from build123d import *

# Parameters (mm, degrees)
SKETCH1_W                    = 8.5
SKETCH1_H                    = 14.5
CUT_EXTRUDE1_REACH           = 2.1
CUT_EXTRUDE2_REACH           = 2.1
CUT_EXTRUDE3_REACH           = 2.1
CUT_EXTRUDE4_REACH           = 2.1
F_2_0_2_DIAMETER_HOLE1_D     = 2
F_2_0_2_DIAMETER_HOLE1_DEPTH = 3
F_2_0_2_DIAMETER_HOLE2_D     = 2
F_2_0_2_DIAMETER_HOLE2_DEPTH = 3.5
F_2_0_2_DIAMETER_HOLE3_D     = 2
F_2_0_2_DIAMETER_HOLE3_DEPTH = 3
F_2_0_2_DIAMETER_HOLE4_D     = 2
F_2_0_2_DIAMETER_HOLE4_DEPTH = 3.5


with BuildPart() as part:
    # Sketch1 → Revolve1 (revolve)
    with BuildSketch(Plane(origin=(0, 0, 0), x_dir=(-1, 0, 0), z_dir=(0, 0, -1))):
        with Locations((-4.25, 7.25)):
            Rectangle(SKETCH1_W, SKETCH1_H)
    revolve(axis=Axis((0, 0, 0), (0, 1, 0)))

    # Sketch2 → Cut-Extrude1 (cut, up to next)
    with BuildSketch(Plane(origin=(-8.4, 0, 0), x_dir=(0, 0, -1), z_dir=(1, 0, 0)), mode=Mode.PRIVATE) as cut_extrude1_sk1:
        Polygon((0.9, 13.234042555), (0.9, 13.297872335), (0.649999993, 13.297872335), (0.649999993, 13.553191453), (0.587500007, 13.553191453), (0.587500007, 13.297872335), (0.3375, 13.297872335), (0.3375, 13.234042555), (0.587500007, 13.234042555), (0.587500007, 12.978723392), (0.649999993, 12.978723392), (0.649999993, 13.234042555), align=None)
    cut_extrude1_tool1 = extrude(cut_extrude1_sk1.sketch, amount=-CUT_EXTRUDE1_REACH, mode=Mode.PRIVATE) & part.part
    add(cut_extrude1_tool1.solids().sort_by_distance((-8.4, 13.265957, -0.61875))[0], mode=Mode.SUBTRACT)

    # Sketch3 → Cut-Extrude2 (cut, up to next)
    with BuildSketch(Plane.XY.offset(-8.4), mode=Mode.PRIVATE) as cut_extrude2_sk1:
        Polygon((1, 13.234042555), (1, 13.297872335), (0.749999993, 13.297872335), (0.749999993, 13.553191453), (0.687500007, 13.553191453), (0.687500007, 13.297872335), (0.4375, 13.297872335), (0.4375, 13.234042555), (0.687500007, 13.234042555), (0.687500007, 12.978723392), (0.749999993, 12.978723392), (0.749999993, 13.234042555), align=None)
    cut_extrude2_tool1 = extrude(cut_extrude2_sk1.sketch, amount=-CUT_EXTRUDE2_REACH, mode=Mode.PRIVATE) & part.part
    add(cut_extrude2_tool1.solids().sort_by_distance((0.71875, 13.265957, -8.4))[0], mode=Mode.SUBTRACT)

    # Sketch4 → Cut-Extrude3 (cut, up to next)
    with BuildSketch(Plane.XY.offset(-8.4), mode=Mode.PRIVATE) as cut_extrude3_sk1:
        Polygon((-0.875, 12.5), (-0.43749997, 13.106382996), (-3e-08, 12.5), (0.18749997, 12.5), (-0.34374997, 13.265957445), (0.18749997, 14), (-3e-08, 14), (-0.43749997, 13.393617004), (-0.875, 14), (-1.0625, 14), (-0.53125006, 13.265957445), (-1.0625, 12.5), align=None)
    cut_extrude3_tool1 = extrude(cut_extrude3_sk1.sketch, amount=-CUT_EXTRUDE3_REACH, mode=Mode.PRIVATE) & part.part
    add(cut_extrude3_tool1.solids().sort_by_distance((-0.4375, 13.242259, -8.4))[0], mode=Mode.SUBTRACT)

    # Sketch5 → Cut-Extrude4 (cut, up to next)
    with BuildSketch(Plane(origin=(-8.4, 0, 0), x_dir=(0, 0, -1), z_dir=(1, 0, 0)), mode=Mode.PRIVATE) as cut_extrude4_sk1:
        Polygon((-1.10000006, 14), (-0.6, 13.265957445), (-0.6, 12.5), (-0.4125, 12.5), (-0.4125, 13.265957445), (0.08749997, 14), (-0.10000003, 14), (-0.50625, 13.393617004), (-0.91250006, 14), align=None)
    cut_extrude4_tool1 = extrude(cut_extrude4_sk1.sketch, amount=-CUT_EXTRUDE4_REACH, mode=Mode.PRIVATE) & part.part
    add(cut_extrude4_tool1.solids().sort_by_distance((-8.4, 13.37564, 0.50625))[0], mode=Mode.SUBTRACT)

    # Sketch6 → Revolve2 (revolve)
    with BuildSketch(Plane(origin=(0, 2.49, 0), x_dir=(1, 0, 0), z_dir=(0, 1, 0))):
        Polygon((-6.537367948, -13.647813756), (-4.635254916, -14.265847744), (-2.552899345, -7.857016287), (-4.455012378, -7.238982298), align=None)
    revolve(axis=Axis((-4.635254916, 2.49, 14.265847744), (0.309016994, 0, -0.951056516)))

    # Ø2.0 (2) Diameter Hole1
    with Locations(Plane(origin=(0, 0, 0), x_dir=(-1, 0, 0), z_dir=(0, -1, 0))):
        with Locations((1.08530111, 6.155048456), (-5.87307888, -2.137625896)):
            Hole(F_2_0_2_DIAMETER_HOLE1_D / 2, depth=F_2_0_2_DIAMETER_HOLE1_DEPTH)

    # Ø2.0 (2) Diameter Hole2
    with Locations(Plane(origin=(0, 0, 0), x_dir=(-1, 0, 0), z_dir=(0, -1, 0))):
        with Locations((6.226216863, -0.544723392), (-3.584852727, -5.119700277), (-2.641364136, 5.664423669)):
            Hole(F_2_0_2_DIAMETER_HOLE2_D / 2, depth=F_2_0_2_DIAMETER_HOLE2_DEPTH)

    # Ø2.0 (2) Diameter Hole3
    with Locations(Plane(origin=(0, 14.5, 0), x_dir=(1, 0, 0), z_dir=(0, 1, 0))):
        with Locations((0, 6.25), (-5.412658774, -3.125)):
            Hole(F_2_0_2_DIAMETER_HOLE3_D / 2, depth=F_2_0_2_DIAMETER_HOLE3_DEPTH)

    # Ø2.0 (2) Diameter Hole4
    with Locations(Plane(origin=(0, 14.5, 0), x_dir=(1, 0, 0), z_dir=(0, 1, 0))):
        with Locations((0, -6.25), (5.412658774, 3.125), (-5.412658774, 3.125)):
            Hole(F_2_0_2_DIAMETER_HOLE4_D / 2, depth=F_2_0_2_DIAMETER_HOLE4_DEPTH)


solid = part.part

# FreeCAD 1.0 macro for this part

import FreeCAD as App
import Part
import Sketcher

V = App.Vector
Q = App.Units.Quantity


def add_polygon(sketch, points):
    """Adds a closed chain of lines whose ends are joined by coincident constraints."""
    first, n = sketch.GeometryCount, len(points)
    for a, b in zip(points, points[1:] + points[:1]):
        sketch.addGeometry(Part.LineSegment(App.Vector(*a, 0), App.Vector(*b, 0)), False)
    for i in range(n):
        sketch.addConstraint(Sketcher.Constraint("Coincident", first + i, 2, first + (i + 1) % n, 1))

doc = App.newDocument("Part")
body = doc.addObject("PartDesign::Body", "Body")

# Sketch on XY plane
sketch1 = body.newObject("Sketcher::SketchObject", "Sketch")
sketch1.AttachmentSupport = (doc.getObject("XY_Plane"), [""])
sketch1.MapMode = "FlatFace"
add_polygon(sketch1, [(8, 14), (8, 0), (0, 0), (0, 14)])  # lines 0-3
sketch1.addConstraint(Sketcher.Constraint("Vertical", 0))
sketch1.addConstraint(Sketcher.Constraint("Horizontal", 1))
sketch1.addConstraint(Sketcher.Constraint("Vertical", 2))
sketch1.addConstraint(Sketcher.Constraint("Horizontal", 3))
sketch1.addConstraint(Sketcher.Constraint("Coincident", 1, 2, -1, 1))
sketch1.addConstraint(Sketcher.Constraint("DistanceX", 1, 2, 1, 1, Q("8.5 mm")))
sketch1.addConstraint(Sketcher.Constraint("DistanceY", 0, 2, 0, 1, Q("14.5 mm")))
revolution = body.newObject("PartDesign::Revolution", "Revolution")
revolution.Profile = sketch1
revolution.ReferenceAxis = (sketch1, ["V_Axis"])
revolution.Angle = 360

# Sketch on YZ plane
sketch2 = body.newObject("Sketcher::SketchObject", "Sketch001")
sketch2.AttachmentSupport = (doc.getObject("YZ_Plane"), [""])
sketch2.MapMode = "FlatFace"
sketch2.AttachmentOffset = App.Placement(V(0, 0, -8.4), App.Rotation())
add_polygon(sketch2, [(13.23, -0.9), (13.3, -0.9), (13.3, -0.65), (13.55, -0.65), (13.55, -0.59), (13.3, -0.59), (13.3, -0.34), (13.23, -0.34), (13.23, -0.59), (12.98, -0.59), (12.98, -0.65), (13.23, -0.65)])  # lines 0-11
sketch2.addConstraint(Sketcher.Constraint("Horizontal", 0))
sketch2.addConstraint(Sketcher.Constraint("Vertical", 1))
sketch2.addConstraint(Sketcher.Constraint("Horizontal", 2))
sketch2.addConstraint(Sketcher.Constraint("Vertical", 3))
sketch2.addConstraint(Sketcher.Constraint("Horizontal", 4))
sketch2.addConstraint(Sketcher.Constraint("Vertical", 5))
sketch2.addConstraint(Sketcher.Constraint("Horizontal", 6))
sketch2.addConstraint(Sketcher.Constraint("Vertical", 7))
sketch2.addConstraint(Sketcher.Constraint("Horizontal", 8))
sketch2.addConstraint(Sketcher.Constraint("Vertical", 9))
sketch2.addConstraint(Sketcher.Constraint("Horizontal", 10))
sketch2.addConstraint(Sketcher.Constraint("Vertical", 11))
sketch2.addConstraint(Sketcher.Constraint("Horizontal", 4, 2, 7, 2))
sketch2.addConstraint(Sketcher.Constraint("Horizontal", 2, 2, 9, 2))
sketch2.addConstraint(Sketcher.Constraint("Vertical", 1, 2, 4, 2))
sketch2.addConstraint(Sketcher.Constraint("Vertical", 7, 2, 10, 2))
sketch2.addConstraint(Sketcher.Constraint("Equal", 4, 8))
sketch2.addConstraint(Sketcher.Constraint("Equal", 1, 5))
sketch2.addConstraint(Sketcher.Constraint("DistanceY", 1, 1, 1, 2, Q("0.25 mm")))
sketch2.addConstraint(Sketcher.Constraint("DistanceY", 0, 2, -1, 1, Q("0.9 mm")))
sketch2.addConstraint(Sketcher.Constraint("DistanceY", 3, 1, 3, 2, Q("0.0625 mm")))
sketch2.addConstraint(Sketcher.Constraint("DistanceX", 0, 1, 0, 2, Q("0.06383 mm")))
sketch2.addConstraint(Sketcher.Constraint("DistanceX", 2, 1, 2, 2, Q("0.255319 mm")))
sketch2.addConstraint(Sketcher.Constraint("DistanceX", -1, 1, 2, 2, Q("13.553191 mm")))
pocket1 = body.newObject("PartDesign::Pocket", "Pocket")
pocket1.Profile = sketch2
pocket1.Type = "UpToFirst"

# Sketch on XY plane
sketch3 = body.newObject("Sketcher::SketchObject", "Sketch002")
sketch3.AttachmentSupport = (doc.getObject("XY_Plane"), [""])
sketch3.MapMode = "FlatFace"
sketch3.AttachmentOffset = App.Placement(V(0, 0, -8.4), App.Rotation())
add_polygon(sketch3, [(1, 13.23), (1, 13.3), (0.75, 13.3), (0.75, 13.55), (0.69, 13.55), (0.69, 13.3), (0.44, 13.3), (0.44, 13.23), (0.69, 13.23), (0.69, 12.98), (0.75, 12.98), (0.75, 13.23)])  # lines 0-11
sketch3.addConstraint(Sketcher.Constraint("Vertical", 0))
sketch3.addConstraint(Sketcher.Constraint("Horizontal", 1))
sketch3.addConstraint(Sketcher.Constraint("Vertical", 2))
sketch3.addConstraint(Sketcher.Constraint("Horizontal", 3))
sketch3.addConstraint(Sketcher.Constraint("Vertical", 4))
sketch3.addConstraint(Sketcher.Constraint("Horizontal", 5))
sketch3.addConstraint(Sketcher.Constraint("Vertical", 6))
sketch3.addConstraint(Sketcher.Constraint("Horizontal", 7))
sketch3.addConstraint(Sketcher.Constraint("Vertical", 8))
sketch3.addConstraint(Sketcher.Constraint("Horizontal", 9))
sketch3.addConstraint(Sketcher.Constraint("Vertical", 10))
sketch3.addConstraint(Sketcher.Constraint("Horizontal", 11))
sketch3.addConstraint(Sketcher.Constraint("Horizontal", 1, 2, 4, 2))
sketch3.addConstraint(Sketcher.Constraint("Horizontal", 7, 2, 10, 2))
sketch3.addConstraint(Sketcher.Constraint("Vertical", 4, 2, 7, 2))
sketch3.addConstraint(Sketcher.Constraint("Vertical", 2, 2, 9, 2))
sketch3.addConstraint(Sketcher.Constraint("Equal", 1, 5))
sketch3.addConstraint(Sketcher.Constraint("Equal", 4, 8))
sketch3.addConstraint(Sketcher.Constraint("DistanceX", -1, 1, 0, 2, Q("1 mm")))
sketch3.addConstraint(Sketcher.Constraint("DistanceX", 1, 2, 1, 1, Q("0.25 mm")))
sketch3.addConstraint(Sketcher.Constraint("DistanceX", 3, 2, 3, 1, Q("0.0625 mm")))
sketch3.addConstraint(Sketcher.Constraint("DistanceY", 0, 1, 0, 2, Q("0.06383 mm")))
sketch3.addConstraint(Sketcher.Constraint("DistanceY", 2, 1, 2, 2, Q("0.255319 mm")))
sketch3.addConstraint(Sketcher.Constraint("DistanceY", -1, 1, 2, 2, Q("13.553191 mm")))
pocket2 = body.newObject("PartDesign::Pocket", "Pocket001")
pocket2.Profile = sketch3
pocket2.Type = "UpToFirst"

# Sketch on XY plane
sketch4 = body.newObject("Sketcher::SketchObject", "Sketch003")
sketch4.AttachmentSupport = (doc.getObject("XY_Plane"), [""])
sketch4.MapMode = "FlatFace"
sketch4.AttachmentOffset = App.Placement(V(0, 0, -8.4), App.Rotation())
add_polygon(sketch4, [(-0.88, 12.5), (-0.44, 13.11), (0, 12.5), (0.19, 12.5), (-0.34, 13.27), (0.19, 14), (0, 14), (-0.44, 13.39), (-0.88, 14), (-1.06, 14), (-0.53, 13.27), (-1.06, 12.5)])  # lines 0-11
sketch4.addConstraint(Sketcher.Constraint("Horizontal", 2))
sketch4.addConstraint(Sketcher.Constraint("Horizontal", 5))
sketch4.addConstraint(Sketcher.Constraint("Horizontal", 8))
sketch4.addConstraint(Sketcher.Constraint("Horizontal", 11))
sketch4.addConstraint(Sketcher.Constraint("PointOnObject", 1, 2, -2))
sketch4.addConstraint(Sketcher.Constraint("PointOnObject", 5, 2, -2))
sketch4.addConstraint(Sketcher.Constraint("Parallel", 0, 6))
sketch4.addConstraint(Sketcher.Constraint("Parallel", 1, 7))
sketch4.addConstraint(Sketcher.Constraint("Horizontal", 5, 2, 7, 2))
sketch4.addConstraint(Sketcher.Constraint("Horizontal", 3, 2, 9, 2))
sketch4.addConstraint(Sketcher.Constraint("Horizontal", 2, 2, 10, 2))
sketch4.addConstraint(Sketcher.Constraint("Vertical", 2, 2, 4, 2))
sketch4.addConstraint(Sketcher.Constraint("Vertical", 0, 2, 6, 2))
sketch4.addConstraint(Sketcher.Constraint("Vertical", 8, 2, 10, 2))
sketch4.addConstraint(Sketcher.Constraint("Vertical", 7, 2, 11, 2))
sketch4.addConstraint(Sketcher.Constraint("Equal", 5, 8))
sketch4.addConstraint(Sketcher.Constraint("Equal", 4, 9))
sketch4.addConstraint(Sketcher.Constraint("DistanceY", -1, 1, 4, 2, Q("14 mm")))
sketch4.addConstraint(Sketcher.Constraint("DistanceY", -1, 1, 1, 2, Q("12.5 mm")))
sketch4.addConstraint(Sketcher.Constraint("DistanceX", 2, 1, 2, 2, Q("0.1875 mm")))
sketch4.addConstraint(Sketcher.Constraint("DistanceX", 7, 2, -1, 1, Q("0.875 mm")))
sketch4.addConstraint(Sketcher.Constraint("DistanceX", 9, 2, 3, 2, Q("0.1875 mm")))
sketch4.addConstraint(Sketcher.Constraint("DistanceY", 3, 2, 6, 2, Q("0.12766 mm")))
sketch4.addConstraint(Sketcher.Constraint("Distance", 0, Q("0.747734 mm")))
pocket3 = body.newObject("PartDesign::Pocket", "Pocket002")
pocket3.Profile = sketch4
pocket3.Type = "UpToFirst"

# Sketch on YZ plane
sketch5 = body.newObject("Sketcher::SketchObject", "Sketch004")
sketch5.AttachmentSupport = (doc.getObject("YZ_Plane"), [""])
sketch5.MapMode = "FlatFace"
sketch5.AttachmentOffset = App.Placement(V(0, 0, -8.4), App.Rotation())
add_polygon(sketch5, [(14, 1.1), (13.27, 0.6), (12.5, 0.6), (12.5, 0.41), (13.27, 0.41), (14, -0.09), (14, 0.1), (13.39, 0.51), (14, 0.91)])  # lines 0-8
sketch5.addConstraint(Sketcher.Constraint("Horizontal", 1))
sketch5.addConstraint(Sketcher.Constraint("Vertical", 2))
sketch5.addConstraint(Sketcher.Constraint("Horizontal", 3))
sketch5.addConstraint(Sketcher.Constraint("Vertical", 5))
sketch5.addConstraint(Sketcher.Constraint("Vertical", 8))
sketch5.addConstraint(Sketcher.Constraint("Vertical", 0, 2, 3, 2))
sketch5.addConstraint(Sketcher.Constraint("Vertical", 5, 2, 7, 2))
sketch5.addConstraint(Sketcher.Constraint("Equal", 2, 5))
sketch5.addConstraint(Sketcher.Constraint("Equal", 5, 8))
sketch5.addConstraint(Sketcher.Constraint("Equal", 0, 4))
sketch5.addConstraint(Sketcher.Constraint("Equal", 6, 7))
sketch5.addConstraint(Sketcher.Constraint("DistanceX", -1, 1, 4, 2, Q("14 mm")))
sketch5.addConstraint(Sketcher.Constraint("DistanceY", 4, 2, 7, 2, Q("1 mm")))
sketch5.addConstraint(Sketcher.Constraint("DistanceY", -1, 1, 0, 2, Q("0.6 mm")))
sketch5.addConstraint(Sketcher.Constraint("DistanceX", -1, 1, 1, 2, Q("12.5 mm")))
sketch5.addConstraint(Sketcher.Constraint("DistanceY", 2, 2, 2, 1, Q("0.1875 mm")))
sketch5.addConstraint(Sketcher.Constraint("Distance", 6, Q("0.72989 mm")))
sketch5.addConstraint(Sketcher.Constraint("DistanceX", 1, 2, 1, 1, Q("0.765957 mm")))
pocket4 = body.newObject("PartDesign::Pocket", "Pocket003")
pocket4.Profile = sketch5
pocket4.Type = "UpToFirst"

# Sketch on XZ plane
sketch6 = body.newObject("Sketcher::SketchObject", "Sketch005")
sketch6.AttachmentSupport = (doc.getObject("XZ_Plane"), [""])
sketch6.MapMode = "FlatFace"
sketch6.AttachmentOffset = App.Placement(V(0, 0, -2.49), App.Rotation())
add_polygon(sketch6, [(-6.5, 13.6), (-4.6, 14.3), (-2.6, 7.9), (-4.5, 7.2)])  # lines 0-3
sketch6.addGeometry(Part.LineSegment(V(-4.6, 14.3, 0), V(-2.6, 7.9, 0)), True)  # axis
sketch6.addConstraint(Sketcher.Constraint("Coincident", 4, 1, 0, 2))
sketch6.addConstraint(Sketcher.Constraint("Coincident", 4, 2, 1, 2))
sketch6.addConstraint(Sketcher.Constraint("Perpendicular", 0, 1))
sketch6.addConstraint(Sketcher.Constraint("Perpendicular", 1, 2))
sketch6.addConstraint(Sketcher.Constraint("Perpendicular", 2, 3))
sketch6.addConstraint(Sketcher.Constraint("Angle", 0, Q("18 deg")))
sketch6.addConstraint(Sketcher.Constraint("Distance", 0, Q("2 mm")))
sketch6.addConstraint(Sketcher.Constraint("DistanceX", 1, 2, -1, 1, Q("2.552899 mm")))
sketch6.addConstraint(Sketcher.Constraint("DistanceY", 1, 2, 0, 2, Q("6.408831 mm")))
sketch6.addConstraint(Sketcher.Constraint("DistanceY", -1, 1, 0, 2, Q("14.265848 mm")))
revolution2 = body.newObject("PartDesign::Revolution", "Revolution001")
revolution2.Profile = sketch6
revolution2.ReferenceAxis = (sketch6, ["Axis0"])
revolution2.Angle = 360

# Sketch on XZ plane
sketch7 = body.newObject("Sketcher::SketchObject", "Sketch006")
sketch7.AttachmentSupport = (doc.getObject("XZ_Plane"), [""])
sketch7.MapMode = "FlatFace"
sketch7.addGeometry(Part.Circle(V(-1.1, -6.2, 0), V(0, 0, 1), 1), False)
sketch7.addGeometry(Part.Circle(V(5.9, 2.1, 0), V(0, 0, 1), 1), False)
sketch7.addConstraint(Sketcher.Constraint("Equal", 0, 1))
sketch7.addConstraint(Sketcher.Constraint("Diameter", 0, Q("2 mm")))
sketch7.addConstraint(Sketcher.Constraint("DistanceX", 0, 3, -1, 1, Q("1.085301 mm")))
sketch7.addConstraint(Sketcher.Constraint("DistanceY", 0, 3, -1, 1, Q("6.155048 mm")))
sketch7.addConstraint(Sketcher.Constraint("DistanceX", -1, 1, 1, 3, Q("5.873079 mm")))
sketch7.addConstraint(Sketcher.Constraint("DistanceY", -1, 1, 1, 3, Q("2.137626 mm")))
doc.recompute()
hole = body.newObject("PartDesign::Hole", "Hole")
hole.Profile = sketch7
hole.ThreadType = "None"
hole.Diameter = 2
hole.DepthType = "Dimension"
hole.Depth = 3
hole.DrillPoint = "Flat"

# Sketch on XZ plane
sketch8 = body.newObject("Sketcher::SketchObject", "Sketch007")
sketch8.AttachmentSupport = (doc.getObject("XZ_Plane"), [""])
sketch8.MapMode = "FlatFace"
sketch8.addGeometry(Part.Circle(V(-6.2, 0.5, 0), V(0, 0, 1), 1), False)
sketch8.addGeometry(Part.Circle(V(3.6, 5.1, 0), V(0, 0, 1), 1), False)
sketch8.addGeometry(Part.Circle(V(2.6, -5.7, 0), V(0, 0, 1), 1), False)
sketch8.addConstraint(Sketcher.Constraint("Equal", 0, 1))
sketch8.addConstraint(Sketcher.Constraint("Equal", 1, 2))
sketch8.addConstraint(Sketcher.Constraint("Diameter", 0, Q("2 mm")))
sketch8.addConstraint(Sketcher.Constraint("DistanceY", -1, 1, 1, 3, Q("5.1197 mm")))
sketch8.addConstraint(Sketcher.Constraint("DistanceX", 0, 3, 1, 3, Q("9.81107 mm")))
sketch8.addConstraint(Sketcher.Constraint("DistanceX", 0, 3, 2, 3, Q("8.867581 mm")))
sketch8.addConstraint(Sketcher.Constraint("DistanceX", 0, 3, -1, 1, Q("6.226217 mm")))
sketch8.addConstraint(Sketcher.Constraint("DistanceY", -1, 1, 0, 3, Q("0.544723 mm")))
sketch8.addConstraint(Sketcher.Constraint("DistanceY", 2, 3, -1, 1, Q("5.664424 mm")))
doc.recompute()
hole2 = body.newObject("PartDesign::Hole", "Hole001")
hole2.Profile = sketch8
hole2.ThreadType = "None"
hole2.Diameter = 2
hole2.DepthType = "Dimension"
hole2.Depth = 3.5
hole2.DrillPoint = "Flat"

# Sketch on XZ plane
sketch9 = body.newObject("Sketcher::SketchObject", "Sketch008")
sketch9.AttachmentSupport = (doc.getObject("XZ_Plane"), [""])
sketch9.MapMode = "FlatFace"
sketch9.AttachmentOffset = App.Placement(V(0, 0, -14.5), App.Rotation())
sketch9.addGeometry(Part.Circle(V(0, -6.2, 0), V(0, 0, 1), 1), False)
sketch9.addGeometry(Part.Circle(V(-5.4, 3.1, 0), V(0, 0, 1), 1), False)
sketch9.addConstraint(Sketcher.Constraint("Equal", 0, 1))
sketch9.addConstraint(Sketcher.Constraint("PointOnObject", 0, 3, -2))
sketch9.addConstraint(Sketcher.Constraint("Diameter", 0, Q("2 mm")))
sketch9.addConstraint(Sketcher.Constraint("DistanceY", 0, 3, -1, 1, Q("6.25 mm")))
sketch9.addConstraint(Sketcher.Constraint("DistanceY", -1, 1, 1, 3, Q("3.125 mm")))
sketch9.addConstraint(Sketcher.Constraint("DistanceX", 1, 3, -1, 1, Q("5.412659 mm")))
doc.recompute()
hole3 = body.newObject("PartDesign::Hole", "Hole002")
hole3.Profile = sketch9
hole3.ThreadType = "None"
hole3.Diameter = 2
hole3.DepthType = "Dimension"
hole3.Depth = 3
hole3.DrillPoint = "Flat"
hole3.Reversed = True

# Sketch on XZ plane
sketch10 = body.newObject("Sketcher::SketchObject", "Sketch009")
sketch10.AttachmentSupport = (doc.getObject("XZ_Plane"), [""])
sketch10.MapMode = "FlatFace"
sketch10.AttachmentOffset = App.Placement(V(0, 0, -14.5), App.Rotation())
sketch10.addGeometry(Part.Circle(V(0, 6.2, 0), V(0, 0, 1), 1), False)
sketch10.addGeometry(Part.Circle(V(5.4, -3.1, 0), V(0, 0, 1), 1), False)
sketch10.addGeometry(Part.Circle(V(-5.4, -3.1, 0), V(0, 0, 1), 1), False)
sketch10.addConstraint(Sketcher.Constraint("Equal", 0, 1))
sketch10.addConstraint(Sketcher.Constraint("Equal", 1, 2))
sketch10.addConstraint(Sketcher.Constraint("Symmetric", 1, 3, 2, 3, -2))
sketch10.addConstraint(Sketcher.Constraint("PointOnObject", 0, 3, -2))
sketch10.addConstraint(Sketcher.Constraint("Diameter", 0, Q("2 mm")))
sketch10.addConstraint(Sketcher.Constraint("DistanceY", -1, 1, 0, 3, Q("6.25 mm")))
sketch10.addConstraint(Sketcher.Constraint("DistanceY", 1, 3, -1, 1, Q("3.125 mm")))
sketch10.addConstraint(Sketcher.Constraint("DistanceX", -1, 1, 1, 3, Q("5.412659 mm")))
doc.recompute()
hole4 = body.newObject("PartDesign::Hole", "Hole003")
hole4.Profile = sketch10
hole4.ThreadType = "None"
hole4.Diameter = 2
hole4.DepthType = "Dimension"
hole4.Depth = 3.5
hole4.DrillPoint = "Flat"
hole4.Reversed = True

doc.recompute()
